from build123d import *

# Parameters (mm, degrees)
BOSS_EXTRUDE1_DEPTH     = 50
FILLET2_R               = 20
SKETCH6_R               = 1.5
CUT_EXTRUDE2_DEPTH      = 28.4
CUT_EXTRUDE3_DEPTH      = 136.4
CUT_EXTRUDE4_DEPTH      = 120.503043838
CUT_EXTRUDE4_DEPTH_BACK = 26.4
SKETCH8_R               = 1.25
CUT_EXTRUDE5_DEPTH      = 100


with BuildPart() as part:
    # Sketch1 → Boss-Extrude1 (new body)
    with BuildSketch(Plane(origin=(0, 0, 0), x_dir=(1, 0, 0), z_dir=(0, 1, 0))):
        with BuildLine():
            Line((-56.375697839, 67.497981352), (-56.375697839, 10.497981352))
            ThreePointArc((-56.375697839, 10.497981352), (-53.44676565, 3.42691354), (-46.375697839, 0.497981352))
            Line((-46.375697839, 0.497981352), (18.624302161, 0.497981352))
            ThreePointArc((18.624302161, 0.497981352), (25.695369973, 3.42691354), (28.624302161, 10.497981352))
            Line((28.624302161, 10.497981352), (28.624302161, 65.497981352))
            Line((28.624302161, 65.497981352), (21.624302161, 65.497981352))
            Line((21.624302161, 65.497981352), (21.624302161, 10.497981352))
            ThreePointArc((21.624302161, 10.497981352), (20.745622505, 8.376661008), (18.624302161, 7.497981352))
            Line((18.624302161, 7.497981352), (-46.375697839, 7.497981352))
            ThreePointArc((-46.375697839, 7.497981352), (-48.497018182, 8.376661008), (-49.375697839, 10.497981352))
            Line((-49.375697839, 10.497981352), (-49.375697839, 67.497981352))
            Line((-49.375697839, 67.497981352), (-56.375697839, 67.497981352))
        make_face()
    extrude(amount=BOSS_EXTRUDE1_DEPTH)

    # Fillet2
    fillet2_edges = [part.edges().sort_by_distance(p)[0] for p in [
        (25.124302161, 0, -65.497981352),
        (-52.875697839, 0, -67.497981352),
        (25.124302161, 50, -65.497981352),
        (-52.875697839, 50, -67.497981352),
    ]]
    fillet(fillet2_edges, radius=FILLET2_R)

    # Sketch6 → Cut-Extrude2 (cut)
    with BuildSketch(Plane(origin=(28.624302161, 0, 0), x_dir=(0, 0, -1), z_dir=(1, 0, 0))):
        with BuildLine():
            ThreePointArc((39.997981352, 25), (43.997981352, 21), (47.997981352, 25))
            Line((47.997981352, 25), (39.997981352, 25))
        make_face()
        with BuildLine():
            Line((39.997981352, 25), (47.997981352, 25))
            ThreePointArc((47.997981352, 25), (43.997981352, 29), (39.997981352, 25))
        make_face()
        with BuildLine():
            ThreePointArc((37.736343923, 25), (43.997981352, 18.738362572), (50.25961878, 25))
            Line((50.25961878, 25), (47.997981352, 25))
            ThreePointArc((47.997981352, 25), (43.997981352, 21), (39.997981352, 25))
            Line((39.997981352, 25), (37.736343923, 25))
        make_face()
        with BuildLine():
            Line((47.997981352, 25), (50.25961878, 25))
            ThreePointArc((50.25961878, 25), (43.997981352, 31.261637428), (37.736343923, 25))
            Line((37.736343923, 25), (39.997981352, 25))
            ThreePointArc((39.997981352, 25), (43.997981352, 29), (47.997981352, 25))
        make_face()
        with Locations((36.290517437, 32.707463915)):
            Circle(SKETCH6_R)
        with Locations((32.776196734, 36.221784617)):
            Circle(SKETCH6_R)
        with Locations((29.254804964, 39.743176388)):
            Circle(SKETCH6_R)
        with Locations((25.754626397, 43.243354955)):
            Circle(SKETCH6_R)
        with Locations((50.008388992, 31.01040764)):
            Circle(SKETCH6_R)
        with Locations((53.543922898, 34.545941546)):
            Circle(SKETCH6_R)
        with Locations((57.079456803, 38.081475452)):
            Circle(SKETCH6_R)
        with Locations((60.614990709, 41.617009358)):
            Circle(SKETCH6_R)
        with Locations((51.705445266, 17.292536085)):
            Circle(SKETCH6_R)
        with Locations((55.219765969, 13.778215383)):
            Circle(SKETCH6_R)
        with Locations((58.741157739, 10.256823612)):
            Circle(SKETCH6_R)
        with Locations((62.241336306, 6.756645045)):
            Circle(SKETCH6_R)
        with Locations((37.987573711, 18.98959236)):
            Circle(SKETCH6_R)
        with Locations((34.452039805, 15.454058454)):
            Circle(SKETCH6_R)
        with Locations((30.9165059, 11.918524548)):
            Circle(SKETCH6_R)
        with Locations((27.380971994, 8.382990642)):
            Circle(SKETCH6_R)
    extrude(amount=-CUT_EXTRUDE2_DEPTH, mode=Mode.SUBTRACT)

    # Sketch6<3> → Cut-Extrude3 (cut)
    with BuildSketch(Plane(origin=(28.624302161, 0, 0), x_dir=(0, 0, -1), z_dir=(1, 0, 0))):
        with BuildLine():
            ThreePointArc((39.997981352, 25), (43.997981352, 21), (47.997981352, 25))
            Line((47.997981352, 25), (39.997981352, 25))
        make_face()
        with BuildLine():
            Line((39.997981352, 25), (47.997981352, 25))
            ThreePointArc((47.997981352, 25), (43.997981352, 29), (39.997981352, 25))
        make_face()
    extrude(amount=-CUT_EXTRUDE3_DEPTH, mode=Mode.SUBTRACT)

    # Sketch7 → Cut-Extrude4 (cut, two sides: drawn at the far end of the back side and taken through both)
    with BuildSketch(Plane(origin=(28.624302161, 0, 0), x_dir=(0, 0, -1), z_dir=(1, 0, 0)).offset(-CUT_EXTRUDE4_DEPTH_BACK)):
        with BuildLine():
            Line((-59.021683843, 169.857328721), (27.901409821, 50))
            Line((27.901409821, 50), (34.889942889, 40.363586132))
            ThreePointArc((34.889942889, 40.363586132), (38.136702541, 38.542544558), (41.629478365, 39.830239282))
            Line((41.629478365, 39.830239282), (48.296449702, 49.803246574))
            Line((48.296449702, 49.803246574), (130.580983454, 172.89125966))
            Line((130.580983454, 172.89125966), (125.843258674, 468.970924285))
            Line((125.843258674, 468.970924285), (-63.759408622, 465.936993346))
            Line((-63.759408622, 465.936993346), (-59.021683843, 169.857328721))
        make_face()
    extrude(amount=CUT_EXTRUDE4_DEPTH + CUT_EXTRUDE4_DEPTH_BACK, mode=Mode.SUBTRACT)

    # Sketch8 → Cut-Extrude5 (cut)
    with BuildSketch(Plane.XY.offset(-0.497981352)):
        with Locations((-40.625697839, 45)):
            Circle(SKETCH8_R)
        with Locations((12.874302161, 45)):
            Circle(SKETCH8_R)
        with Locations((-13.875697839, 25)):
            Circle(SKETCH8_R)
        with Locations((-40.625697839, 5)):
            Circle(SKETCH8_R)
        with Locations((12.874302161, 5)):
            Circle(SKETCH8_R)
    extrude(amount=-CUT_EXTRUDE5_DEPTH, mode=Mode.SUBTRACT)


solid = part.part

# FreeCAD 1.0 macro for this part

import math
import FreeCAD as App
import Part
import Sketcher


def edges_at(feature, points):
    """Names of the edges that pass closest to the given points."""
    edges = feature.Shape.Edges
    near = lambda p: min(range(len(edges)), key=lambda i: edges[i].distToShape(Part.Vertex(*p))[0])
    return sorted({f"Edge{near(p) + 1}" for p in points})

doc = App.newDocument("Part")
body = doc.addObject("PartDesign::Body", "Body")

# Sketch on XZ plane
sketch1 = doc.addObject("Sketcher::SketchObject", "Sketch")
body.addObject(sketch1)
sketch1.AttachmentSupport = (doc.XZ_Plane, [""])
sketch1.MapMode = "FlatFace"
sketch1.addGeometry(Part.LineSegment(App.Vector(-56.375698, -67.497981, 0), App.Vector(-56.375698, -10.497981, 0)), False)
sketch1.addGeometry(Part.ArcOfCircle(Part.Circle(App.Vector(-46.375698, -10.497981, 0), App.Vector(0, 0, 1), 10), math.radians(90), math.radians(180)), False)
sketch1.addGeometry(Part.LineSegment(App.Vector(-46.375698, -0.497981, 0), App.Vector(18.624302, -0.497981, 0)), False)
sketch1.addGeometry(Part.ArcOfCircle(Part.Circle(App.Vector(18.624302, -10.497981, 0), App.Vector(0, 0, 1), 10), math.radians(0), math.radians(90)), False)
sketch1.addGeometry(Part.LineSegment(App.Vector(28.624302, -10.497981, 0), App.Vector(28.624302, -65.497981, 0)), False)
sketch1.addGeometry(Part.LineSegment(App.Vector(28.624302, -65.497981, 0), App.Vector(21.624302, -65.497981, 0)), False)
sketch1.addGeometry(Part.LineSegment(App.Vector(21.624302, -65.497981, 0), App.Vector(21.624302, -10.497981, 0)), False)
sketch1.addGeometry(Part.ArcOfCircle(Part.Circle(App.Vector(18.624302, -10.497981, 0), App.Vector(0, 0, 1), 3), math.radians(0), math.radians(90)), False)
sketch1.addGeometry(Part.LineSegment(App.Vector(18.624302, -7.497981, 0), App.Vector(-46.375698, -7.497981, 0)), False)
sketch1.addGeometry(Part.ArcOfCircle(Part.Circle(App.Vector(-46.375698, -10.497981, 0), App.Vector(0, 0, 1), 3), math.radians(90), math.radians(180)), False)
sketch1.addGeometry(Part.LineSegment(App.Vector(-49.375698, -10.497981, 0), App.Vector(-49.375698, -67.497981, 0)), False)
sketch1.addGeometry(Part.LineSegment(App.Vector(-49.375698, -67.497981, 0), App.Vector(-56.375698, -67.497981, 0)), False)
sketch1.addConstraint(Sketcher.Constraint("Tangent", 0, 2, 1, 2))
sketch1.addConstraint(Sketcher.Constraint("Tangent", 1, 1, 2, 1))
sketch1.addConstraint(Sketcher.Constraint("Tangent", 2, 2, 3, 2))
sketch1.addConstraint(Sketcher.Constraint("Tangent", 3, 1, 4, 1))
sketch1.addConstraint(Sketcher.Constraint("Coincident", 4, 2, 5, 1))
sketch1.addConstraint(Sketcher.Constraint("Coincident", 5, 2, 6, 1))
sketch1.addConstraint(Sketcher.Constraint("Tangent", 6, 2, 7, 1))
sketch1.addConstraint(Sketcher.Constraint("Tangent", 7, 2, 8, 1))
sketch1.addConstraint(Sketcher.Constraint("Tangent", 8, 2, 9, 1))
sketch1.addConstraint(Sketcher.Constraint("Tangent", 9, 2, 10, 1))
sketch1.addConstraint(Sketcher.Constraint("Coincident", 10, 2, 11, 1))
sketch1.addConstraint(Sketcher.Constraint("Coincident", 11, 2, 0, 1))
sketch1.addConstraint(Sketcher.Constraint("Vertical", 0))
sketch1.addConstraint(Sketcher.Constraint("Horizontal", 2))
sketch1.addConstraint(Sketcher.Constraint("Vertical", 4))
sketch1.addConstraint(Sketcher.Constraint("Horizontal", 5))
sketch1.addConstraint(Sketcher.Constraint("Vertical", 6))
sketch1.addConstraint(Sketcher.Constraint("Horizontal", 8))
sketch1.addConstraint(Sketcher.Constraint("Vertical", 10))
sketch1.addConstraint(Sketcher.Constraint("Horizontal", 11))
sketch1.addConstraint(Sketcher.Constraint("Coincident", 7, 3, 3, 3))
sketch1.addConstraint(Sketcher.Constraint("Coincident", 9, 3, 1, 3))
sketch1.addConstraint(Sketcher.Constraint("Equal", 1, 3))
sketch1.addConstraint(Sketcher.Constraint("Radius", 1, 10.0))
sketch1.addConstraint(Sketcher.Constraint("Radius", 7, 3.0))
sketch1.addConstraint(Sketcher.Constraint("DistanceX", 2, 1, 2, 2, 65.0))
sketch1.addConstraint(Sketcher.Constraint("DistanceY", 0, 1, 0, 2, 57.0))
sketch1.addConstraint(Sketcher.Constraint("DistanceY", 4, 2, 4, 1, 55.0))
sketch1.addConstraint(Sketcher.Constraint("DistanceY", 1, 3, -1, 1, 10.497981))
sketch1.addConstraint(Sketcher.Constraint("DistanceX", 1, 3, -1, 1, 46.375698))
pad1 = doc.addObject("PartDesign::Pad", "Pad")
body.addObject(pad1)
pad1.Profile = sketch1
pad1.Length = 50
pad1.Reversed = True
doc.recompute()

fillet = doc.addObject("PartDesign::Fillet", "Fillet")
body.addObject(fillet)
fillet.Base = (pad1, edges_at(pad1, [
    (25.124, 0, -65.498),
    (-52.876, 0, -67.498),
    (25.124, 50, -65.498),
    (-52.876, 50, -67.498),
]))
fillet.Radius = 20

# Sketch on YZ plane
sketch2 = doc.addObject("Sketcher::SketchObject", "Sketch001")
body.addObject(sketch2)
sketch2.AttachmentSupport = (doc.YZ_Plane, [""])
sketch2.MapMode = "FlatFace"
sketch2.AttachmentOffset = App.Placement(App.Vector(0, 0, 28.624302), App.Rotation())
sketch2.addGeometry(Part.ArcOfCircle(Part.Circle(App.Vector(25, -43.997981, 0), App.Vector(0, 0, 1), 6.261637), math.radians(90), math.radians(270)), False)
sketch2.addGeometry(Part.ArcOfCircle(Part.Circle(App.Vector(25, -43.997981, 0), App.Vector(0, 0, 1), 6.261637), math.radians(-90), math.radians(90)), False)
sketch2.addGeometry(Part.Circle(App.Vector(32.707464, -36.290517, 0), App.Vector(0, 0, 1), 1.5), False)
sketch2.addGeometry(Part.Circle(App.Vector(36.221785, -32.776197, 0), App.Vector(0, 0, 1), 1.5), False)
sketch2.addGeometry(Part.Circle(App.Vector(39.743176, -29.254805, 0), App.Vector(0, 0, 1), 1.5), False)
sketch2.addGeometry(Part.Circle(App.Vector(43.243355, -25.754626, 0), App.Vector(0, 0, 1), 1.5), False)
sketch2.addGeometry(Part.Circle(App.Vector(31.010408, -50.008389, 0), App.Vector(0, 0, 1), 1.5), False)
sketch2.addGeometry(Part.Circle(App.Vector(34.545942, -53.543923, 0), App.Vector(0, 0, 1), 1.5), False)
sketch2.addGeometry(Part.Circle(App.Vector(38.081475, -57.079457, 0), App.Vector(0, 0, 1), 1.5), False)
sketch2.addGeometry(Part.Circle(App.Vector(41.617009, -60.614991, 0), App.Vector(0, 0, 1), 1.5), False)
sketch2.addGeometry(Part.Circle(App.Vector(17.292536, -51.705445, 0), App.Vector(0, 0, 1), 1.5), False)
sketch2.addGeometry(Part.Circle(App.Vector(13.778215, -55.219766, 0), App.Vector(0, 0, 1), 1.5), False)
sketch2.addGeometry(Part.Circle(App.Vector(10.256824, -58.741158, 0), App.Vector(0, 0, 1), 1.5), False)
sketch2.addGeometry(Part.Circle(App.Vector(6.756645, -62.241336, 0), App.Vector(0, 0, 1), 1.5), False)
sketch2.addGeometry(Part.Circle(App.Vector(18.989592, -37.987574, 0), App.Vector(0, 0, 1), 1.5), False)
sketch2.addGeometry(Part.Circle(App.Vector(15.454058, -34.45204, 0), App.Vector(0, 0, 1), 1.5), False)
sketch2.addGeometry(Part.Circle(App.Vector(11.918525, -30.916506, 0), App.Vector(0, 0, 1), 1.5), False)
sketch2.addGeometry(Part.Circle(App.Vector(8.382991, -27.380972, 0), App.Vector(0, 0, 1), 1.5), False)
sketch2.addConstraint(Sketcher.Constraint("Tangent", 0, 1, 1, 2))
sketch2.addConstraint(Sketcher.Constraint("Coincident", 1, 1, 0, 2))
sketch2.addConstraint(Sketcher.Constraint("Equal", 2, 3))
sketch2.addConstraint(Sketcher.Constraint("Equal", 3, 4))
sketch2.addConstraint(Sketcher.Constraint("Equal", 4, 5))
sketch2.addConstraint(Sketcher.Constraint("Equal", 5, 6))
sketch2.addConstraint(Sketcher.Constraint("Equal", 6, 7))
sketch2.addConstraint(Sketcher.Constraint("Equal", 7, 8))
sketch2.addConstraint(Sketcher.Constraint("Equal", 8, 9))
sketch2.addConstraint(Sketcher.Constraint("Equal", 9, 10))
sketch2.addConstraint(Sketcher.Constraint("Equal", 10, 11))
sketch2.addConstraint(Sketcher.Constraint("Equal", 11, 12))
sketch2.addConstraint(Sketcher.Constraint("Equal", 12, 13))
sketch2.addConstraint(Sketcher.Constraint("Equal", 13, 14))
sketch2.addConstraint(Sketcher.Constraint("Equal", 14, 15))
sketch2.addConstraint(Sketcher.Constraint("Equal", 15, 16))
sketch2.addConstraint(Sketcher.Constraint("Equal", 16, 17))
sketch2.addConstraint(Sketcher.Constraint("Vertical", 1, 3, 0, 1))
sketch2.addConstraint(Sketcher.Constraint("Vertical", 0, 1, 1, 1))
sketch2.addConstraint(Sketcher.Constraint("Diameter", 2, 3.0))
sketch2.addConstraint(Sketcher.Constraint("DistanceX", -1, 1, 0, 3, 25.0))
sketch2.addConstraint(Sketcher.Constraint("Radius", 0, 6.261637))
sketch2.addConstraint(Sketcher.Constraint("DistanceX", 6, 3, 9, 3, 10.606602))
sketch2.addConstraint(Sketcher.Constraint("DistanceY", 9, 3, 6, 3, 10.606602))
sketch2.addConstraint(Sketcher.Constraint("DistanceX", 17, 3, 14, 3, 10.606602))
sketch2.addConstraint(Sketcher.Constraint("DistanceY", 14, 3, 17, 3, 10.606602))
sketch2.addConstraint(Sketcher.Constraint("DistanceY", 0, 3, -1, 1, 43.997981))
sketch2.addConstraint(Sketcher.Constraint("DistanceY", 6, 3, -1, 1, 50.008389))
sketch2.addConstraint(Sketcher.Constraint("DistanceX", -1, 1, 7, 3, 34.545942))
sketch2.addConstraint(Sketcher.Constraint("DistanceX", -1, 1, 9, 3, 41.617009))
sketch2.addConstraint(Sketcher.Constraint("DistanceX", -1, 1, 15, 3, 15.454058))
sketch2.addConstraint(Sketcher.Constraint("DistanceY", 15, 3, -1, 1, 34.45204))
sketch2.addConstraint(Sketcher.Constraint("DistanceX", -1, 1, 17, 3, 8.382991))
sketch2.addConstraint(Sketcher.Constraint("DistanceY", 17, 3, -1, 1, 27.380972))
sketch2.addConstraint(Sketcher.Constraint("DistanceX", 2, 3, 3, 3, 3.514321))
sketch2.addConstraint(Sketcher.Constraint("DistanceY", 2, 3, 3, 3, 3.514321))
sketch2.addConstraint(Sketcher.Constraint("DistanceX", 3, 3, 4, 3, 3.521392))
sketch2.addConstraint(Sketcher.Constraint("DistanceY", 3, 3, 4, 3, 3.521392))
sketch2.addConstraint(Sketcher.Constraint("DistanceX", 4, 3, 5, 3, 3.500179))
sketch2.addConstraint(Sketcher.Constraint("DistanceY", 4, 3, 5, 3, 3.500179))
sketch2.addConstraint(Sketcher.Constraint("DistanceY", 6, 3, 2, 3, 13.717872))
sketch2.addConstraint(Sketcher.Constraint("DistanceX", 6, 3, 4, 3, 8.732769))
sketch2.addConstraint(Sketcher.Constraint("DistanceY", 7, 3, 0, 3, 9.545942))
sketch2.addConstraint(Sketcher.Constraint("DistanceX", 2, 3, 8, 3, 5.374012))
sketch2.addConstraint(Sketcher.Constraint("DistanceY", 8, 3, 2, 3, 20.788939))
sketch2.addConstraint(Sketcher.Constraint("DistanceX", 10, 3, 6, 3, 13.717872))
sketch2.addConstraint(Sketcher.Constraint("DistanceY", 8, 3, 10, 3, 5.374012))
sketch2.addConstraint(Sketcher.Constraint("DistanceX", 11, 3, 10, 3, 3.514321))
sketch2.addConstraint(Sketcher.Constraint("DistanceY", 11, 3, 10, 3, 3.514321))
sketch2.addConstraint(Sketcher.Constraint("DistanceX", 12, 3, 11, 3, 3.521392))
sketch2.addConstraint(Sketcher.Constraint("DistanceY", 12, 3, 11, 3, 3.521392))
sketch2.addConstraint(Sketcher.Constraint("DistanceX", 13, 3, 12, 3, 3.500179))
sketch2.addConstraint(Sketcher.Constraint("DistanceY", 13, 3, 12, 3, 3.500179))
sketch2.addConstraint(Sketcher.Constraint("DistanceX", 16, 3, 10, 3, 5.374012))
sketch2.addConstraint(Sketcher.Constraint("DistanceY", 10, 3, 16, 3, 20.788939))
pocket1 = doc.addObject("PartDesign::Pocket", "Pocket")
body.addObject(pocket1)
pocket1.Profile = sketch2
pocket1.Length = 28.4

# Sketch on YZ plane
sketch3 = doc.addObject("Sketcher::SketchObject", "Sketch002")
body.addObject(sketch3)
sketch3.AttachmentSupport = (doc.YZ_Plane, [""])
sketch3.MapMode = "FlatFace"
sketch3.AttachmentOffset = App.Placement(App.Vector(0, 0, 28.624302), App.Rotation())
sketch3.addGeometry(Part.Circle(App.Vector(25, -43.997981, 0), App.Vector(0, 0, 1), 4), False)
sketch3.addConstraint(Sketcher.Constraint("Diameter", 0, 8.0))
sketch3.addConstraint(Sketcher.Constraint("DistanceX", -1, 1, 0, 3, 25.0))
sketch3.addConstraint(Sketcher.Constraint("DistanceY", 0, 3, -1, 1, 43.997981))
pocket2 = doc.addObject("PartDesign::Pocket", "Pocket001")
body.addObject(pocket2)
pocket2.Profile = sketch3
pocket2.Length = 136.4

# Sketch on YZ plane
sketch4 = doc.addObject("Sketcher::SketchObject", "Sketch003")
body.addObject(sketch4)
sketch4.AttachmentSupport = (doc.YZ_Plane, [""])
sketch4.MapMode = "FlatFace"
sketch4.AttachmentOffset = App.Placement(App.Vector(0, 0, 28.624302), App.Rotation())
sketch4.addGeometry(Part.LineSegment(App.Vector(169.857329, 59.021684, 0), App.Vector(50, -27.90141, 0)), False)
sketch4.addGeometry(Part.LineSegment(App.Vector(50, -27.90141, 0), App.Vector(40.363586, -34.889943, 0)), False)
sketch4.addGeometry(Part.ArcOfCircle(Part.Circle(App.Vector(42.972446, -38.487272, 0), App.Vector(0, 0, 1), 4.443751), math.radians(125.950424), math.radians(225)), False)
sketch4.addGeometry(Part.LineSegment(App.Vector(39.830239, -41.629478, 0), App.Vector(49.803247, -48.29645, 0)), False)
sketch4.addGeometry(Part.LineSegment(App.Vector(49.803247, -48.29645, 0), App.Vector(172.89126, -130.580983, 0)), False)
sketch4.addGeometry(Part.LineSegment(App.Vector(172.89126, -130.580983, 0), App.Vector(468.970924, -125.843259, 0)), False)
sketch4.addGeometry(Part.LineSegment(App.Vector(468.970924, -125.843259, 0), App.Vector(465.936993, 63.759409, 0)), False)
sketch4.addGeometry(Part.LineSegment(App.Vector(465.936993, 63.759409, 0), App.Vector(169.857329, 59.021684, 0)), False)
sketch4.addConstraint(Sketcher.Constraint("Coincident", 0, 2, 1, 1))
sketch4.addConstraint(Sketcher.Constraint("Tangent", 1, 2, 2, 1))
sketch4.addConstraint(Sketcher.Constraint("Coincident", 2, 2, 3, 1))
sketch4.addConstraint(Sketcher.Constraint("Coincident", 3, 2, 4, 1))
sketch4.addConstraint(Sketcher.Constraint("Coincident", 4, 2, 5, 1))
sketch4.addConstraint(Sketcher.Constraint("Coincident", 5, 2, 6, 1))
sketch4.addConstraint(Sketcher.Constraint("Coincident", 6, 2, 7, 1))
sketch4.addConstraint(Sketcher.Constraint("Coincident", 7, 2, 0, 1))
sketch4.addConstraint(Sketcher.Constraint("Parallel", 0, 1))
sketch4.addConstraint(Sketcher.Constraint("Parallel", 3, 4))
sketch4.addConstraint(Sketcher.Constraint("Perpendicular", 5, 6))
sketch4.addConstraint(Sketcher.Constraint("Perpendicular", 6, 7))
sketch4.addConstraint(Sketcher.Constraint("Equal", 0, 4))
sketch4.addConstraint(Sketcher.Constraint("Equal", 5, 7))
sketch4.addConstraint(Sketcher.Constraint("DistanceX", -1, 1, 0, 2, 50.0))
sketch4.addConstraint(Sketcher.Constraint("Radius", 2, 4.443751))
sketch4.addConstraint(Sketcher.Constraint("DistanceX", 2, 3, 3, 2, 6.830801))
sketch4.addConstraint(Sketcher.Constraint("Distance", 6, 189.626939))
sketch4.addConstraint(Sketcher.Constraint("DistanceY", 2, 3, -1, 1, 38.487272))
sketch4.addConstraint(Sketcher.Constraint("DistanceY", 0, 2, -1, 1, 27.90141))
sketch4.addConstraint(Sketcher.Constraint("DistanceX", -1, 1, 2, 2, 39.830239))
sketch4.addConstraint(Sketcher.Constraint("DistanceY", 2, 2, -1, 1, 41.629478))
sketch4.addConstraint(Sketcher.Constraint("DistanceY", 3, 2, -1, 1, 48.29645))
sketch4.addConstraint(Sketcher.Constraint("DistanceY", 5, 2, -1, 1, 125.843259))
pocket3 = doc.addObject("PartDesign::Pocket", "Pocket002")
body.addObject(pocket3)
pocket3.Profile = sketch4
pocket3.Type = "TwoLengths"
pocket3.Length = 120.503044
pocket3.Length2 = 26.4
pocket3.Reversed = True

# Sketch on XY plane
sketch5 = doc.addObject("Sketcher::SketchObject", "Sketch004")
body.addObject(sketch5)
sketch5.AttachmentSupport = (doc.XY_Plane, [""])
sketch5.MapMode = "FlatFace"
sketch5.AttachmentOffset = App.Placement(App.Vector(0, 0, -0.497981), App.Rotation())
sketch5.addGeometry(Part.Circle(App.Vector(-40.625698, 45, 0), App.Vector(0, 0, 1), 1.25), False)
sketch5.addGeometry(Part.Circle(App.Vector(12.874302, 45, 0), App.Vector(0, 0, 1), 1.25), False)
sketch5.addGeometry(Part.Circle(App.Vector(-13.875698, 25, 0), App.Vector(0, 0, 1), 1.25), False)
sketch5.addGeometry(Part.Circle(App.Vector(-40.625698, 5, 0), App.Vector(0, 0, 1), 1.25), False)
sketch5.addGeometry(Part.Circle(App.Vector(12.874302, 5, 0), App.Vector(0, 0, 1), 1.25), False)
sketch5.addConstraint(Sketcher.Constraint("Equal", 0, 1))
sketch5.addConstraint(Sketcher.Constraint("Equal", 1, 2))
sketch5.addConstraint(Sketcher.Constraint("Equal", 2, 3))
sketch5.addConstraint(Sketcher.Constraint("Equal", 3, 4))
sketch5.addConstraint(Sketcher.Constraint("Horizontal", 0, 3, 1, 3))
sketch5.addConstraint(Sketcher.Constraint("Horizontal", 3, 3, 4, 3))
sketch5.addConstraint(Sketcher.Constraint("Vertical", 0, 3, 3, 3))
sketch5.addConstraint(Sketcher.Constraint("Vertical", 1, 3, 4, 3))
sketch5.addConstraint(Sketcher.Constraint("Diameter", 0, 2.5))
sketch5.addConstraint(Sketcher.Constraint("DistanceY", -1, 1, 0, 3, 45.0))
sketch5.addConstraint(Sketcher.Constraint("DistanceY", -1, 1, 2, 3, 25.0))
sketch5.addConstraint(Sketcher.Constraint("DistanceY", -1, 1, 3, 3, 5.0))
sketch5.addConstraint(Sketcher.Constraint("DistanceX", 0, 3, 1, 3, 53.5))
sketch5.addConstraint(Sketcher.Constraint("DistanceX", 0, 3, 2, 3, 26.75))
sketch5.addConstraint(Sketcher.Constraint("DistanceX", 0, 3, -1, 1, 40.625698))
pocket4 = doc.addObject("PartDesign::Pocket", "Pocket003")
body.addObject(pocket4)
pocket4.Profile = sketch5
pocket4.Length = 100

doc.recompute()
